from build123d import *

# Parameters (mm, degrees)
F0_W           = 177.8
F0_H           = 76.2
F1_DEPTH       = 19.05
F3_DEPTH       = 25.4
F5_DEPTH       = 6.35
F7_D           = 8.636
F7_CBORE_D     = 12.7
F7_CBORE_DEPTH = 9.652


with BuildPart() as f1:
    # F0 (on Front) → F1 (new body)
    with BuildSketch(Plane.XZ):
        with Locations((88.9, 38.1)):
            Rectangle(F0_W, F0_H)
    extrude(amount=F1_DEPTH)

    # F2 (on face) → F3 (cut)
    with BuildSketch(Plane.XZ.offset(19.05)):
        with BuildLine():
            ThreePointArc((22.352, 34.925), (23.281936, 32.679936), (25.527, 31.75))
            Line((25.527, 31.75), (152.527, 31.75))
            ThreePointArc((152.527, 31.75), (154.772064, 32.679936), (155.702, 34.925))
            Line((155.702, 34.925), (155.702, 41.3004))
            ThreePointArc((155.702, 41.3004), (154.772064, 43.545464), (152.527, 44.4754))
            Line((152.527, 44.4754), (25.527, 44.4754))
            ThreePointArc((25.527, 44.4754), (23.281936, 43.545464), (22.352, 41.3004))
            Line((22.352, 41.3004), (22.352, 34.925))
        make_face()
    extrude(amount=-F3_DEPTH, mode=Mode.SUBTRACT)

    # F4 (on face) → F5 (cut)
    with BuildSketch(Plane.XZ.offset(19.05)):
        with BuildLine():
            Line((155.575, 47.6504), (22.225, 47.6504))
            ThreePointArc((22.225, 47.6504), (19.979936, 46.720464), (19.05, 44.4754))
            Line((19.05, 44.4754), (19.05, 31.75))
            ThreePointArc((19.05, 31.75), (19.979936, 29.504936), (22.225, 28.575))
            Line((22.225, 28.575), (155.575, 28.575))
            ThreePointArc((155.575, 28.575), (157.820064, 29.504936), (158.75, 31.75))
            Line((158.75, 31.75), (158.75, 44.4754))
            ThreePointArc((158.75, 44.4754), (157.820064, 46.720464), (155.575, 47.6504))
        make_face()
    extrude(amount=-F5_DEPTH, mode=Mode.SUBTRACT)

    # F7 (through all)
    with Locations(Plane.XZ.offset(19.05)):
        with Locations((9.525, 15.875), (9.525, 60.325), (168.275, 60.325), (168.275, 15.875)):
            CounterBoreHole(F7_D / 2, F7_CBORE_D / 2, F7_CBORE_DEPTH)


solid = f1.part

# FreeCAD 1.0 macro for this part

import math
import FreeCAD as App
import Part
import Sketcher

V = App.Vector
Q = App.Units.Quantity

doc = App.newDocument("Part")
body = doc.addObject("PartDesign::Body", "Body")

# Sketch on XZ plane
sketch1 = doc.addObject("Sketcher::SketchObject", "Sketch")
body.addObject(sketch1)
sketch1.AttachmentSupport = (doc.XZ_Plane, [""])
sketch1.MapMode = "FlatFace"
sketch1.addGeometry([
    Part.LineSegment(V(0, 76, 0), V(0, 0, 0)),
    Part.LineSegment(V(0, 0, 0), V(178, 0, 0)),
    Part.LineSegment(V(178, 0, 0), V(178, 76, 0)),
    Part.LineSegment(V(178, 76, 0), V(0, 76, 0)),
], False)
sketch1.addConstraint([
    Sketcher.Constraint("Coincident", 0, 2, 1, 1),
    Sketcher.Constraint("Coincident", 1, 2, 2, 1),
    Sketcher.Constraint("Coincident", 2, 2, 3, 1),
    Sketcher.Constraint("Coincident", 3, 2, 0, 1),
    Sketcher.Constraint("Vertical", 0),
    Sketcher.Constraint("Horizontal", 1),
    Sketcher.Constraint("Vertical", 2),
    Sketcher.Constraint("Horizontal", 3),
    Sketcher.Constraint("Coincident", 0, 2, -1, 1),
    Sketcher.Constraint("DistanceX", 1, 1, 1, 2, Q("7 in")),
    Sketcher.Constraint("DistanceY", 0, 2, 0, 1, Q("3 in")),
])
pad1 = doc.addObject("PartDesign::Pad", "Pad")
body.addObject(pad1)
pad1.Profile = sketch1
pad1.Length = Q("0.75 in")

# Sketch on XZ plane
sketch2 = doc.addObject("Sketcher::SketchObject", "Sketch001")
body.addObject(sketch2)
sketch2.AttachmentSupport = (doc.XZ_Plane, [""])
sketch2.MapMode = "FlatFace"
sketch2.AttachmentOffset = App.Placement(V(0, 0, 0.75 * 25.4), App.Rotation())
sketch2.addGeometry([
    Part.ArcOfCircle(Part.Circle(V(25.5, 34.9, 0), V(0, 0, 1), 3.2), math.radians(-180), math.radians(-90)),  # 0
    Part.LineSegment(V(25.5, 31.8, 0), V(152.5, 31.8, 0)),  # 1
    Part.ArcOfCircle(Part.Circle(V(152.5, 34.9, 0), V(0, 0, 1), 3.2), math.radians(-90), math.radians(0)),  # 2
    Part.LineSegment(V(155.7, 34.9, 0), V(155.7, 41.3, 0)),  # 3
    Part.ArcOfCircle(Part.Circle(V(152.5, 41.3, 0), V(0, 0, 1), 3.2), math.radians(0), math.radians(90)),  # 4
    Part.LineSegment(V(152.5, 44.5, 0), V(25.5, 44.5, 0)),  # 5
    Part.ArcOfCircle(Part.Circle(V(25.5, 41.3, 0), V(0, 0, 1), 3.2), math.radians(90), math.radians(180)),  # 6
    Part.LineSegment(V(22.4, 41.3, 0), V(22.4, 34.9, 0)),  # 7
], False)
sketch2.addConstraint([
    Sketcher.Constraint("Tangent", 0, 2, 1, 1),
    Sketcher.Constraint("Tangent", 1, 2, 2, 1),
    Sketcher.Constraint("Tangent", 2, 2, 3, 1),
    Sketcher.Constraint("Tangent", 3, 2, 4, 1),
    Sketcher.Constraint("Tangent", 4, 2, 5, 1),
    Sketcher.Constraint("Tangent", 5, 2, 6, 1),
    Sketcher.Constraint("Tangent", 6, 2, 7, 1),
    Sketcher.Constraint("Tangent", 7, 2, 0, 1),
    Sketcher.Constraint("Horizontal", 1),
    Sketcher.Constraint("Vertical", 3),
    Sketcher.Constraint("Horizontal", 5),
    Sketcher.Constraint("Vertical", 7),
    Sketcher.Constraint("Equal", 0, 2),
    Sketcher.Constraint("Equal", 2, 4),
    Sketcher.Constraint("Equal", 4, 6),
    Sketcher.Constraint("DistanceX", 1, 1, 1, 2, Q("5 in")),
    Sketcher.Constraint("Radius", 0, Q("0.125 in")),
    Sketcher.Constraint("DistanceY", 3, 1, 3, 2, Q("0.251 in")),
    Sketcher.Constraint("DistanceY", -1, 1, 0, 2, Q("1.25 in")),
    Sketcher.Constraint("DistanceX", -1, 1, 2, 2, Q("6.13 in")),
])
pocket1 = doc.addObject("PartDesign::Pocket", "Pocket")
body.addObject(pocket1)
pocket1.Profile = sketch2
pocket1.Length = Q("1 in")

# Sketch on XZ plane
sketch3 = doc.addObject("Sketcher::SketchObject", "Sketch002")
body.addObject(sketch3)
sketch3.AttachmentSupport = (doc.XZ_Plane, [""])
sketch3.MapMode = "FlatFace"
sketch3.AttachmentOffset = App.Placement(V(0, 0, 0.75 * 25.4), App.Rotation())
sketch3.addGeometry([
    Part.LineSegment(V(155.6, 47.7, 0), V(22.2, 47.7, 0)),  # 0
    Part.ArcOfCircle(Part.Circle(V(22.2, 44.5, 0), V(0, 0, 1), 3.2), math.radians(90), math.radians(180)),  # 1
    Part.LineSegment(V(19.1, 44.5, 0), V(19.1, 31.8, 0)),  # 2
    Part.ArcOfCircle(Part.Circle(V(22.2, 31.8, 0), V(0, 0, 1), 3.2), math.radians(-180), math.radians(-90)),  # 3
    Part.LineSegment(V(22.2, 28.6, 0), V(155.6, 28.6, 0)),  # 4
    Part.ArcOfCircle(Part.Circle(V(155.6, 31.8, 0), V(0, 0, 1), 3.2), math.radians(-90), math.radians(0)),  # 5
    Part.LineSegment(V(158.8, 31.8, 0), V(158.8, 44.5, 0)),  # 6
    Part.ArcOfCircle(Part.Circle(V(155.6, 44.5, 0), V(0, 0, 1), 3.2), math.radians(0), math.radians(90)),  # 7
], False)
sketch3.addConstraint([
    Sketcher.Constraint("Tangent", 0, 2, 1, 1),
    Sketcher.Constraint("Tangent", 1, 2, 2, 1),
    Sketcher.Constraint("Tangent", 2, 2, 3, 1),
    Sketcher.Constraint("Tangent", 3, 2, 4, 1),
    Sketcher.Constraint("Tangent", 4, 2, 5, 1),
    Sketcher.Constraint("Tangent", 5, 2, 6, 1),
    Sketcher.Constraint("Tangent", 6, 2, 7, 1),
    Sketcher.Constraint("Tangent", 7, 2, 0, 1),
    Sketcher.Constraint("Horizontal", 0),
    Sketcher.Constraint("Vertical", 2),
    Sketcher.Constraint("Horizontal", 4),
    Sketcher.Constraint("Vertical", 6),
    Sketcher.Constraint("Equal", 1, 3),
    Sketcher.Constraint("Equal", 3, 5),
    Sketcher.Constraint("Equal", 5, 7),
    Sketcher.Constraint("Radius", 1, Q("0.125 in")),
    Sketcher.Constraint("DistanceX", 0, 2, 0, 1, Q("5.25 in")),
    Sketcher.Constraint("DistanceY", 2, 2, 2, 1, Q("0.501 in")),
    Sketcher.Constraint("DistanceY", -1, 1, 3, 3, Q("1.25 in")),
    Sketcher.Constraint("DistanceX", -1, 1, 1, 2, Q("0.75 in")),
])
pocket2 = doc.addObject("PartDesign::Pocket", "Pocket001")
body.addObject(pocket2)
pocket2.Profile = sketch3
pocket2.Length = Q("0.25 in")

# Sketch on XZ plane
sketch4 = doc.addObject("Sketcher::SketchObject", "Sketch003")
body.addObject(sketch4)
sketch4.AttachmentSupport = (doc.XZ_Plane, [""])
sketch4.MapMode = "FlatFace"
sketch4.AttachmentOffset = App.Placement(V(0, 0, 0.75 * 25.4), App.Rotation())
sketch4.addGeometry([
    Part.Circle(V(9.5, 15.9, 0), V(0, 0, 1), 4.3),
    Part.Circle(V(9.5, 60.3, 0), V(0, 0, 1), 4.3),
    Part.Circle(V(168.3, 60.3, 0), V(0, 0, 1), 4.3),
    Part.Circle(V(168.3, 15.9, 0), V(0, 0, 1), 4.3),
], False)
sketch4.addConstraint([
    Sketcher.Constraint("Equal", 0, 1),
    Sketcher.Constraint("Equal", 1, 2),
    Sketcher.Constraint("Equal", 2, 3),
    Sketcher.Constraint("Horizontal", 1, 3, 2, 3),
    Sketcher.Constraint("Horizontal", 0, 3, 3, 3),
    Sketcher.Constraint("Vertical", 0, 3, 1, 3),
    Sketcher.Constraint("Vertical", 2, 3, 3, 3),
    Sketcher.Constraint("Diameter", 0, Q("0.34 in")),
    Sketcher.Constraint("DistanceY", 0, 3, 1, 3, Q("1.75 in")),
    Sketcher.Constraint("DistanceX", 1, 3, 2, 3, Q("6.25 in")),
    Sketcher.Constraint("DistanceX", -1, 1, 0, 3, Q("0.375 in")),
    Sketcher.Constraint("DistanceY", -1, 1, 0, 3, Q("0.625 in")),
])
doc.recompute()
hole = doc.addObject("PartDesign::Hole", "Hole")
body.addObject(hole)
hole.Profile = sketch4
hole.ThreadType = "None"
hole.Diameter = Q("0.34 in")
hole.DepthType = "ThroughAll"
hole.HoleCutType = "Counterbore"
hole.HoleCutDiameter = Q("0.5 in")
hole.HoleCutDepth = Q("0.38 in")

doc.recompute()
